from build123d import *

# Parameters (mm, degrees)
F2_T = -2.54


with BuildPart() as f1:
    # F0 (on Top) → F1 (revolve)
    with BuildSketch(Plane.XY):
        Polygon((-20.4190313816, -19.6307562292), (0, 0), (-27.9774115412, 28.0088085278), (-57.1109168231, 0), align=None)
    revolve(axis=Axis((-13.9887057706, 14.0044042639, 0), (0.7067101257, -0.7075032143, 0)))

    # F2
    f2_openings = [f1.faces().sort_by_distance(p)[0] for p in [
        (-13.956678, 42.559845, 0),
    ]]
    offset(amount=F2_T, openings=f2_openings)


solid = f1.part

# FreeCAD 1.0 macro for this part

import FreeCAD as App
import Part
import Sketcher
from FreeCAD import Vector
Q = App.Units.Quantity


def faces_at(feature, points):
    """Names of the faces that lie closest to the given points."""
    faces = feature.Shape.Faces
    near = lambda p: min(range(len(faces)), key=lambda i: faces[i].distToShape(Part.Vertex(*p))[0])
    return sorted({f"Face{near(p) + 1}" for p in points})


def add_polygon(sketch, points):
    """Adds a closed chain of lines whose ends are joined by coincident constraints."""
    first, n = sketch.GeometryCount, len(points)
    for a, b in zip(points, points[1:] + points[:1]):
        sketch.addGeometry(Part.LineSegment(App.Vector(*a, 0), App.Vector(*b, 0)), False)
    for i in range(n):
        sketch.addConstraint(Sketcher.Constraint("Coincident", first + i, 2, first + (i + 1) % n, 1))

doc = App.newDocument("Part")
body = doc.addObject("PartDesign::Body", "Body")

# Sketch on XY plane
sketch1 = body.newObject("Sketcher::SketchObject", "Sketch")
sketch1.AttachmentSupport = (doc.getObject("XY_Plane"), [""])
sketch1.MapMode = "FlatFace"
add_polygon(sketch1, [(-20, -20), (0, 0), (-28, 28), (-57, 0)])  # lines 0-3
sketch1.addGeometry(Part.LineSegment(Vector(-29, 29, 0), Vector(0, 0, 0)), True)  # axis
sketch1.addConstraint([
    Sketcher.Constraint("Coincident", 0, 2, -1, 1),
    Sketcher.Constraint("Coincident", 4, 2, -1, 1),
    Sketcher.Constraint("PointOnObject", 2, 2, -1),
    Sketcher.Constraint("Parallel", 0, 2),
    Sketcher.Constraint("Parallel", 1, 4),
    Sketcher.Constraint("DistanceX", 4, 1, 3, 2, Q("8.104399 mm")),
    Sketcher.Constraint("Distance", 0, Q("28.324961 mm")),
    Sketcher.Constraint("Distance", 3, Q("41.613232 mm")),
    Sketcher.Constraint("DistanceX", 1, 2, -1, 1, Q("27.977412 mm")),
    Sketcher.Constraint("DistanceY", -1, 1, 1, 2, Q("28.008809 mm")),
])
revolution = body.newObject("PartDesign::Revolution", "Revolution")
revolution.Profile = sketch1
revolution.ReferenceAxis = (sketch1, ["Axis0"])
revolution.Angle = 360
doc.recompute()

thickness = body.newObject("PartDesign::Thickness", "Thickness")
thickness.Base = (revolution, faces_at(revolution, [(-13.957, 42.56, 0)]))
thickness.Value = Q("0.1 in")
thickness.Reversed = True
thickness.Join = "Arc"

doc.recompute()
